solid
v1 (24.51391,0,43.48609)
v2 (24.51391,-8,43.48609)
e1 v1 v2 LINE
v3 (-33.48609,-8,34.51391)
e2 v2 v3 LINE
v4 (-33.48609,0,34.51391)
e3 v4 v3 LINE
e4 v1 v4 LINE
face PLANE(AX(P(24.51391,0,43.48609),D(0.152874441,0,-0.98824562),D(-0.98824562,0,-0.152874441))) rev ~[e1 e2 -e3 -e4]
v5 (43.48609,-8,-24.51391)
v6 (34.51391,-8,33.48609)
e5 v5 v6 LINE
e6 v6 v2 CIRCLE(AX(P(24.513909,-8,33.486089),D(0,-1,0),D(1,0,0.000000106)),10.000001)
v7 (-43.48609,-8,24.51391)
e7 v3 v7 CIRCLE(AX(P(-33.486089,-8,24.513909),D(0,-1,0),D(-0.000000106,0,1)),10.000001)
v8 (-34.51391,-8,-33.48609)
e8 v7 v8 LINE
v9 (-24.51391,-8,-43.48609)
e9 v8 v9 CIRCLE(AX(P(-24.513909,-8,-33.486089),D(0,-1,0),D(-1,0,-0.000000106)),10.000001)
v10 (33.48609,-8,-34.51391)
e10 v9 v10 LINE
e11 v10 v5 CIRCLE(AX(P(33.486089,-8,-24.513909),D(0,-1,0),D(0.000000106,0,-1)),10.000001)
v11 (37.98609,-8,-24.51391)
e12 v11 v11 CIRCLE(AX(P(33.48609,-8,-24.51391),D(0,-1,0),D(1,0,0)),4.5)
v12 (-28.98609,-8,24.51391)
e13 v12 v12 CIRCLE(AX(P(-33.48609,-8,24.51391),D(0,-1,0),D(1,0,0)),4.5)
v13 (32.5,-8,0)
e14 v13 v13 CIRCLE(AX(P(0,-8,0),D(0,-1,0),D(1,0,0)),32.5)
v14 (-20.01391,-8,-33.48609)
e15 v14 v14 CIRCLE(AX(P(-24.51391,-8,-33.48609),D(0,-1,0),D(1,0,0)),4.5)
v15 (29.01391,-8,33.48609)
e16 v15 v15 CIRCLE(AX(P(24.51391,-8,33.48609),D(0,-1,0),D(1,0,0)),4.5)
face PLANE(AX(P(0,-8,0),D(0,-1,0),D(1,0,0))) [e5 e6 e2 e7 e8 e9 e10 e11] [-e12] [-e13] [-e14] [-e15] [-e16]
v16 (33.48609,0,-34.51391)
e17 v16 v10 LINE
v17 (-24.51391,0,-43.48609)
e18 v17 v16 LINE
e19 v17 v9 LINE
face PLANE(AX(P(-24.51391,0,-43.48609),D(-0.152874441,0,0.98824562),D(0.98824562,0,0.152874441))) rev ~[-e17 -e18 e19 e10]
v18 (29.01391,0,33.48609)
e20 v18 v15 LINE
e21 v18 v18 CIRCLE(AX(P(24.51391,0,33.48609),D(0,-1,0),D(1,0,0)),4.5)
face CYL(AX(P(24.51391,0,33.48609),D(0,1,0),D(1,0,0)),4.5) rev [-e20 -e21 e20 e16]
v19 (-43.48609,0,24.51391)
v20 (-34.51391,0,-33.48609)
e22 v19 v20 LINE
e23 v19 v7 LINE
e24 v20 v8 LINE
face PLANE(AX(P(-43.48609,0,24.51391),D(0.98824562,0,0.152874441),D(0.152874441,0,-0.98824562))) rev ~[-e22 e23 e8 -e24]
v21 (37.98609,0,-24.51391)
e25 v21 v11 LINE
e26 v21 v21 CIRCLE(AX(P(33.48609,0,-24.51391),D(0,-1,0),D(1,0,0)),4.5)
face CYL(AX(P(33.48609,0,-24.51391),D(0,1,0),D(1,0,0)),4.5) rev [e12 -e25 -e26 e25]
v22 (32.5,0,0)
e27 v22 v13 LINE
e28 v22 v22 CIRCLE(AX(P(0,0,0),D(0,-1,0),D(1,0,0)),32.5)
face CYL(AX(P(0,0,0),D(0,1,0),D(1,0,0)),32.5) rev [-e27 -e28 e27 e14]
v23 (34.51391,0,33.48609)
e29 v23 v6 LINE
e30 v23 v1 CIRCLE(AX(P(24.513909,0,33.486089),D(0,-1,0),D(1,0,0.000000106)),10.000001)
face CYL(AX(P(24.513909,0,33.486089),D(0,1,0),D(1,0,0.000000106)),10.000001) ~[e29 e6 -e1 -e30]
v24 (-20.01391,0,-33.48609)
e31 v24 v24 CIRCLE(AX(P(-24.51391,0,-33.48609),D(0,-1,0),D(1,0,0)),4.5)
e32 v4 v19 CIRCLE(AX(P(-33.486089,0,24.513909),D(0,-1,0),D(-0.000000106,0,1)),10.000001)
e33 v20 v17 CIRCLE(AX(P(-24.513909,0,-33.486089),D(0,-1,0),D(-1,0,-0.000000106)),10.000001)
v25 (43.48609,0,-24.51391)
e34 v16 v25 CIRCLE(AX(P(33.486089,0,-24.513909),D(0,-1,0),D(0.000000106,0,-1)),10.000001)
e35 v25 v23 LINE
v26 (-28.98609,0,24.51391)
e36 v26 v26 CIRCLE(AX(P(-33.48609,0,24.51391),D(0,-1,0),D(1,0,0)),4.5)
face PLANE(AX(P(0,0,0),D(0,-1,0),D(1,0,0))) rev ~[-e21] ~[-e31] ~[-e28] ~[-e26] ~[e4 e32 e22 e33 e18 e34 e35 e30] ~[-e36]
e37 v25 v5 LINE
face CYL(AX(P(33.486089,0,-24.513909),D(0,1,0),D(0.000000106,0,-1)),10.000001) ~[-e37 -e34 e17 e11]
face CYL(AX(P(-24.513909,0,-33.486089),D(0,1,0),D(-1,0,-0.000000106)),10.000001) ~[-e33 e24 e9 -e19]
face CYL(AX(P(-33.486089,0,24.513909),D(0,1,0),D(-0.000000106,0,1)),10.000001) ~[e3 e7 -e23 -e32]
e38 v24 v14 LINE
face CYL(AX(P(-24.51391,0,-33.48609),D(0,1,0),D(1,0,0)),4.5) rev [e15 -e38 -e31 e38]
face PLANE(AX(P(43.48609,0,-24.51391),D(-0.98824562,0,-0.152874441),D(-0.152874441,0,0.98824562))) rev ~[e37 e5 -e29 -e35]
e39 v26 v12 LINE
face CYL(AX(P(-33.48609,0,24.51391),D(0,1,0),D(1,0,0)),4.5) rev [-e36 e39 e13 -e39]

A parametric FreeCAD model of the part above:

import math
import FreeCAD as App
import Part
import Sketcher

V = App.Vector
Q = App.Units.Quantity

doc = App.newDocument("Part")
params = doc.addObject("Spreadsheet::Sheet", "Params")
for row, (alias, value) in enumerate([
    ("sketch1_diameter", "9 mm"),
    ("sketch1_diameter2", "65 mm"),
    ("sketch1_radius", "10.000001 mm"),
    ("pad1_length", "8 mm"),
], start=1):
    params.set(f"A{row}", alias)
    params.set(f"B{row}", "=" + value)
    params.setAlias(f"B{row}", alias)

body = doc.addObject("PartDesign::Body", "Body")

# Sketch on XZ plane
sketch1 = body.newObject("Sketcher::SketchObject", "Sketch")
sketch1.AttachmentSupport = (doc.getObject("XZ_Plane"), [""])
sketch1.MapMode = "FlatFace"
sketch1.addGeometry([
    Part.LineSegment(V(24.51391, 43.48609, 0), V(-33.48609, 34.51391, 0)),  # 0
    Part.ArcOfCircle(Part.Circle(V(-33.486089, 24.513909, 0), V(0, 0, 1), 10.000001), math.radians(90.000006), math.radians(179.999994)),  # 1
    Part.LineSegment(V(-43.48609, 24.51391, 0), V(-34.51391, -33.48609, 0)),  # 2
    Part.ArcOfCircle(Part.Circle(V(-24.513909, -33.486089, 0), V(0, 0, 1), 10.000001), math.radians(-179.999994), math.radians(-90.000006)),  # 3
    Part.LineSegment(V(-24.51391, -43.48609, 0), V(33.48609, -34.51391, 0)),  # 4
    Part.ArcOfCircle(Part.Circle(V(33.486089, -24.513909, 0), V(0, 0, 1), 10.000001), math.radians(-89.999994), math.radians(-0.000006)),  # 5
    Part.LineSegment(V(43.48609, -24.51391, 0), V(34.51391, 33.48609, 0)),  # 6
    Part.ArcOfCircle(Part.Circle(V(24.513909, 33.486089, 0), V(0, 0, 1), 10.000001), math.radians(0.000006), math.radians(89.999994)),  # 7
    Part.Circle(V(-24.51391, -33.48609, 0), V(0, 0, 1), 4.5),  # 8
    Part.Circle(V(0, 0, 0), V(0, 0, 1), 32.5),  # 9
    Part.Circle(V(33.48609, -24.51391, 0), V(0, 0, 1), 4.5),  # 10
    Part.Circle(V(-33.48609, 24.51391, 0), V(0, 0, 1), 4.5),  # 11
    Part.Circle(V(24.51391, 33.48609, 0), V(0, 0, 1), 4.5),  # 12
], False)
sketch1.addConstraint([
    Sketcher.Constraint("Coincident", 0, 2, 1, 1),
    Sketcher.Constraint("Coincident", 1, 2, 2, 1),
    Sketcher.Constraint("Coincident", 2, 2, 3, 1),
    Sketcher.Constraint("Coincident", 3, 2, 4, 1),
    Sketcher.Constraint("Coincident", 4, 2, 5, 1),
    Sketcher.Constraint("Coincident", 5, 2, 6, 1),
    Sketcher.Constraint("Coincident", 6, 2, 7, 1),
    Sketcher.Constraint("Coincident", 7, 2, 0, 1),
    Sketcher.Constraint("Coincident", 9, 3, -1, 1),
    Sketcher.Constraint("Coincident", 8, 3, 3, 3),
    Sketcher.Constraint("Coincident", 10, 3, 5, 3),
    Sketcher.Constraint("Coincident", 11, 3, 1, 3),
    Sketcher.Constraint("Coincident", 12, 3, 7, 3),
    Sketcher.Constraint("Equal", 1, 3),
    Sketcher.Constraint("Equal", 3, 5),
    Sketcher.Constraint("Equal", 5, 7),
    Sketcher.Constraint("Equal", 8, 10),
    Sketcher.Constraint("Equal", 10, 11),
    Sketcher.Constraint("Equal", 11, 12),
    Sketcher.Constraint("Symmetric", 1, 3, 5, 3, -1, 1),
    Sketcher.Constraint("Symmetric", 3, 3, 7, 3, -1, 1),
    Sketcher.Constraint("Perpendicular", 0, 2),
    Sketcher.Constraint("Perpendicular", 2, 4),
    Sketcher.Constraint("Perpendicular", 4, 6),
    Sketcher.Constraint("Horizontal", 11, 3, 1, 2),
    Sketcher.Constraint("Horizontal", 8, 3, 2, 2),
    Sketcher.Constraint("Horizontal", 10, 3, 5, 2),
    Sketcher.Constraint("Vertical", 11, 3, 0, 2),
    Sketcher.Constraint("Vertical", 8, 3, 3, 2),
    Sketcher.Constraint("Vertical", 10, 3, 4, 2),
    Sketcher.Constraint("Equal", 0, 2),
    Sketcher.Constraint("Diameter", 8, Q("9 mm")),
    Sketcher.Constraint("Diameter", 9, Q("65 mm")),
    Sketcher.Constraint("Radius", 1, Q("10.000001 mm")),
    Sketcher.Constraint("DistanceY", 8, 3, 1, 3, Q("57.999999 mm")),
    Sketcher.Constraint("DistanceX", 1, 3, -1, 1, Q("33.486089 mm")),
])
sketch1.setExpression("Constraints[31]", "Params.sketch1_diameter")
sketch1.setExpression("Constraints[32]", "Params.sketch1_diameter2")
sketch1.setExpression("Constraints[33]", "Params.sketch1_radius")
pad1 = body.newObject("PartDesign::Pad", "Pad")
pad1.Profile = sketch1
pad1.setExpression("Length", "Params.pad1_length")

doc.recompute()
